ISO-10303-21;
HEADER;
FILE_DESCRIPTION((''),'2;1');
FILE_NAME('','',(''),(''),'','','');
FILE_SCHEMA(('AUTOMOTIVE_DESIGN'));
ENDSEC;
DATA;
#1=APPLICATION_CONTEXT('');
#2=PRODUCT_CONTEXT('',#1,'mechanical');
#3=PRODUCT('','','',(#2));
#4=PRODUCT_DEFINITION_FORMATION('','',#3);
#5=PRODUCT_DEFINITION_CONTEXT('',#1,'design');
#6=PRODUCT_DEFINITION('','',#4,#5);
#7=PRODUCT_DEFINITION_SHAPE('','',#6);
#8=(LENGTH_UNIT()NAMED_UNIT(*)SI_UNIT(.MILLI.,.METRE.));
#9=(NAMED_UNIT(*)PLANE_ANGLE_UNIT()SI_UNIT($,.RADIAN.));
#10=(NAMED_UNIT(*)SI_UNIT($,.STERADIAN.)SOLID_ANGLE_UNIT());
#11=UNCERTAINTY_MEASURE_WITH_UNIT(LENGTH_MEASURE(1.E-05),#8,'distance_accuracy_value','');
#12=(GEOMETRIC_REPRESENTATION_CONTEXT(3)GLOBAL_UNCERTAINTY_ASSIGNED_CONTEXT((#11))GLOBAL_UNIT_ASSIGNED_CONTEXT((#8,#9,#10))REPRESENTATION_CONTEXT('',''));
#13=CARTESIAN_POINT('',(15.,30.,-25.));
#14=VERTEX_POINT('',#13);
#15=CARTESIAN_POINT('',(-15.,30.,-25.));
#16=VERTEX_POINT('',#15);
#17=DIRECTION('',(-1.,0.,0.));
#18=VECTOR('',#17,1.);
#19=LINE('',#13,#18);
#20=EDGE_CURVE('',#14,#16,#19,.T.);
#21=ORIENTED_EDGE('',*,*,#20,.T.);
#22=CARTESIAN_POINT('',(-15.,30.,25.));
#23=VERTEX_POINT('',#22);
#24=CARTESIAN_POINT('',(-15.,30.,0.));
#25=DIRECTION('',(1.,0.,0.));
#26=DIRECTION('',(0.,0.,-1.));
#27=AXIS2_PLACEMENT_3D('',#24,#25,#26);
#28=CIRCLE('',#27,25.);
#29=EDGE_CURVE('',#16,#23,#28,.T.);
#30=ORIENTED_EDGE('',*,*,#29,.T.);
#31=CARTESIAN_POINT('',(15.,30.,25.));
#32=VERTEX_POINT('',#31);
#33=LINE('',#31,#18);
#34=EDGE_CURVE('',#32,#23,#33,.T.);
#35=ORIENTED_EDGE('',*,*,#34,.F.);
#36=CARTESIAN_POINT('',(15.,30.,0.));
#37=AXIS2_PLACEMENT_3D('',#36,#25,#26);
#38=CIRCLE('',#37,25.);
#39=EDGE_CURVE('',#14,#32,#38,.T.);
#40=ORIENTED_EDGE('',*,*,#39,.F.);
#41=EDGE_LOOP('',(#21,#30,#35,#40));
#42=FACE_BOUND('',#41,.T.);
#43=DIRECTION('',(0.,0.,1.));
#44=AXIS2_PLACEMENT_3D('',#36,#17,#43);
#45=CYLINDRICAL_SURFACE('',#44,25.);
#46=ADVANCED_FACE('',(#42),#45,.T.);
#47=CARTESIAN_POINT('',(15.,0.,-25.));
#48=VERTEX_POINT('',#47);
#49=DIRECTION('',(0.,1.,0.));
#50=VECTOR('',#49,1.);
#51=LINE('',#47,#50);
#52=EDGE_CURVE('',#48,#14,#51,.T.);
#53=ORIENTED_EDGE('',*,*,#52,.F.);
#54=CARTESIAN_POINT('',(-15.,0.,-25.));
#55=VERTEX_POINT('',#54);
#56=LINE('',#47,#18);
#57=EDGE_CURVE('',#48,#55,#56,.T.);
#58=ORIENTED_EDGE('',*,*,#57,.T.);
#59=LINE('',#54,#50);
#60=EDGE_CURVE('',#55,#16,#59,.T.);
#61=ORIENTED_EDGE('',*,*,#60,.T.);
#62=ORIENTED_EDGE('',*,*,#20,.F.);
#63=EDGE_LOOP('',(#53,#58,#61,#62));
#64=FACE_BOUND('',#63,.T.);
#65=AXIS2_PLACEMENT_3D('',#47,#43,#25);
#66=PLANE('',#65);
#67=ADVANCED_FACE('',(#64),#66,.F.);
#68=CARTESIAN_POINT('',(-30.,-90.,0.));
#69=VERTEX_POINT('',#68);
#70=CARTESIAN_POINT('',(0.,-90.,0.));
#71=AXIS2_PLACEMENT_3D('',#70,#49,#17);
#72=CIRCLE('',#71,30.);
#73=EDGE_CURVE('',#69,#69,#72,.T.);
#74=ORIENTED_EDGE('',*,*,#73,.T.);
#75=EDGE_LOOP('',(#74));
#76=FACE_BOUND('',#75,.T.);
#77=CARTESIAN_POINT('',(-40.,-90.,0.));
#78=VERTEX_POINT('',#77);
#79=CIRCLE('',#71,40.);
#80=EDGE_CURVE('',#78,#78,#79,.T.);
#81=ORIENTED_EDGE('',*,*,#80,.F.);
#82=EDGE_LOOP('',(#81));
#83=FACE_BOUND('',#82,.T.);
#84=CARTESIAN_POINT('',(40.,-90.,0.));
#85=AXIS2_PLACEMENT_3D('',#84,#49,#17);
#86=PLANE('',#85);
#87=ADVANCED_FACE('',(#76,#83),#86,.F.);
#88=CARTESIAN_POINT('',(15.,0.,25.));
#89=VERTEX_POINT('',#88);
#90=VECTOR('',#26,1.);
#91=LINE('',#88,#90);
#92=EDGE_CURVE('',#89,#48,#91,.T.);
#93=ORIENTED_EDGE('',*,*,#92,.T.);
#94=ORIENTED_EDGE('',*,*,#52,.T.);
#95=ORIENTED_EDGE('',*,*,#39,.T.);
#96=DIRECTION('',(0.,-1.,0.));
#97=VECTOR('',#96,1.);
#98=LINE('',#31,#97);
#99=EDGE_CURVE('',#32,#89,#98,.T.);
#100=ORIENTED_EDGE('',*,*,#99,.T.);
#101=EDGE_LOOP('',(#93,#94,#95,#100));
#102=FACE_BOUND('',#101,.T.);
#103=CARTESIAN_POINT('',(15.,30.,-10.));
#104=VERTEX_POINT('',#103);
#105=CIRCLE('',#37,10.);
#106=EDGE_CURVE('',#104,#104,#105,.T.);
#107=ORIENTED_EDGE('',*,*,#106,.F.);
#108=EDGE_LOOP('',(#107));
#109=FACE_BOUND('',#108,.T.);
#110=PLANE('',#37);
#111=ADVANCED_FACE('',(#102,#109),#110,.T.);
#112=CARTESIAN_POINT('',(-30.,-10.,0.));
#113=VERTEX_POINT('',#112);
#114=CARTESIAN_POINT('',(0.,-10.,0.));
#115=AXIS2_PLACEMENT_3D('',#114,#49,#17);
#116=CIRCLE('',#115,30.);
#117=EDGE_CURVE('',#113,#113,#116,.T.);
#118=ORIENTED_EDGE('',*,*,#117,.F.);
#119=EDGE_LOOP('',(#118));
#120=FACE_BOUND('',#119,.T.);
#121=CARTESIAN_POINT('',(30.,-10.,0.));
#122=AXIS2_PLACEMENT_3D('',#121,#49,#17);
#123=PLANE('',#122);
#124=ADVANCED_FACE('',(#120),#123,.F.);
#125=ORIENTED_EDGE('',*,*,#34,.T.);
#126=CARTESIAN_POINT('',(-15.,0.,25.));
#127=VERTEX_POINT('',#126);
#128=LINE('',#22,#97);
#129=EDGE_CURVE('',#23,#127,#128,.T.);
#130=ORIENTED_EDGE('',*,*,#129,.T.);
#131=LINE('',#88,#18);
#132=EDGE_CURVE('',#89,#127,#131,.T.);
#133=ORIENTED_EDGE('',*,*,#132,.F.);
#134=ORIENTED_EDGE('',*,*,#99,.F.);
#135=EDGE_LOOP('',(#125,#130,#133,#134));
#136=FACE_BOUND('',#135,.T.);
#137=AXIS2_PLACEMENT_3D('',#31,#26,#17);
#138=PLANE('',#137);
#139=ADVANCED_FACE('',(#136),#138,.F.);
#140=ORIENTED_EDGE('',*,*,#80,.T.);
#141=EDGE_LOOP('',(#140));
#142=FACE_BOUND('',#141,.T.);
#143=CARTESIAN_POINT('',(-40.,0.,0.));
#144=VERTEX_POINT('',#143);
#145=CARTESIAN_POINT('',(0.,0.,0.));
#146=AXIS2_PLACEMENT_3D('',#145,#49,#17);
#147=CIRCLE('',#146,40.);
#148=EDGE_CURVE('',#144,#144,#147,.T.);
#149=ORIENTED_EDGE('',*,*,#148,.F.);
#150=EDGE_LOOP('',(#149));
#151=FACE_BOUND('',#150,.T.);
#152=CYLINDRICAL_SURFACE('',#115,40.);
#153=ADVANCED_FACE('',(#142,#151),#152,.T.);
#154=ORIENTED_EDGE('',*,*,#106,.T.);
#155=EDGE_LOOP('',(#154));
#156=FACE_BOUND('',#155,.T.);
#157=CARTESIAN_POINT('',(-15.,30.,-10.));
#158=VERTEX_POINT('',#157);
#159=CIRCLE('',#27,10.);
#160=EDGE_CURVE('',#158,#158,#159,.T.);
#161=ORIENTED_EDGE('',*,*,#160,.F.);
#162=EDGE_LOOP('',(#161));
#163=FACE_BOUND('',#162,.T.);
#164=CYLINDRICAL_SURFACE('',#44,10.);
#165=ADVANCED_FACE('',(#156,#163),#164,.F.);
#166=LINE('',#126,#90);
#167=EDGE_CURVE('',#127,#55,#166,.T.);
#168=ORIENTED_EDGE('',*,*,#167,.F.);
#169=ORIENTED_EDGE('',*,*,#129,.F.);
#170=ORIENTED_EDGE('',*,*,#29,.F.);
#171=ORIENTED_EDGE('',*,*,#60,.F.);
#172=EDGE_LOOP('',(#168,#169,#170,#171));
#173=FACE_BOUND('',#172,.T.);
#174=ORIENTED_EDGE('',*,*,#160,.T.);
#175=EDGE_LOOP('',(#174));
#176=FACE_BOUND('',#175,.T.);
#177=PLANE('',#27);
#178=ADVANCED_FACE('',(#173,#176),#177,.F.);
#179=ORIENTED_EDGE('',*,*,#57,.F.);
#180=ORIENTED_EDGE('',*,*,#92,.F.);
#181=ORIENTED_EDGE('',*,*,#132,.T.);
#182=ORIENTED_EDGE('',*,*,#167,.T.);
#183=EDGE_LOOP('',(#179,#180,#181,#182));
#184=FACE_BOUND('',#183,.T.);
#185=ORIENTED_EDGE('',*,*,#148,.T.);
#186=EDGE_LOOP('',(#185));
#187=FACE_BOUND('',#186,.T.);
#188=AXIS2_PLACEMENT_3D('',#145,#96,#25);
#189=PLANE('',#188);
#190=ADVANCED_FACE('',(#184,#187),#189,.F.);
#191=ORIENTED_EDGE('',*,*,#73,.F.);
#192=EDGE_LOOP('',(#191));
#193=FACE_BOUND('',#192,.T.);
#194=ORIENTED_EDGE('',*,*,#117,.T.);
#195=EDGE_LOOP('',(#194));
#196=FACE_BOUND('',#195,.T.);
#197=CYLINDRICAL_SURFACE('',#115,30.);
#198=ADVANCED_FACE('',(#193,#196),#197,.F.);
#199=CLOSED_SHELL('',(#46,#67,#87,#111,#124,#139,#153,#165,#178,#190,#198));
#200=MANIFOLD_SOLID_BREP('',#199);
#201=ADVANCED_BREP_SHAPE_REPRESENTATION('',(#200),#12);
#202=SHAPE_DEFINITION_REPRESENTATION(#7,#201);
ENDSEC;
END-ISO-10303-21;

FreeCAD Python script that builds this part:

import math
import FreeCAD as App
import Part
import Sketcher

V = App.Vector

doc = App.newDocument("Part")
params = doc.addObject("Spreadsheet::Sheet", "Params")
for row, (alias, value) in enumerate([
    ("sketch1_width", "40 mm"),
    ("sketch1_width2", "30 mm"),
    ("sketch1_height", "80 mm"),
    ("revolution_angle", "360 deg"),
    ("sketch2_diameter", "20 mm"),
    ("sketch2_radius", "25 mm"),
    ("sketch2_width", "30 mm"),
    ("pad1_length", "30 mm"),
], start=1):
    params.set(f"A{row}", alias)
    params.set(f"B{row}", "=" + value)
    params.setAlias(f"B{row}", alias)

body = doc.addObject("PartDesign::Body", "Body")

sketch1 = body.newObject("Sketcher::SketchObject", "Sketch")
sketch1.AttachmentSupport = (doc.getObject("XY_Plane"), [""])
sketch1.MapMode = "FlatFace"
sketch1.addGeometry([
    Part.LineSegment(V(40, 0, 0), V(0, 0, 0)),
    Part.LineSegment(V(0, 0, 0), V(0, -10, 0)),
    Part.LineSegment(V(0, -10, 0), V(30, -10, 0)),
    Part.LineSegment(V(30, -10, 0), V(30, -90, 0)),
    Part.LineSegment(V(30, -90, 0), V(40, -90, 0)),
    Part.LineSegment(V(40, -90, 0), V(40, 0, 0)),
], False)
sketch1.addConstraint([
    Sketcher.Constraint("Coincident", 0, 2, 1, 1),
    Sketcher.Constraint("Coincident", 1, 2, 2, 1),
    Sketcher.Constraint("Coincident", 2, 2, 3, 1),
    Sketcher.Constraint("Coincident", 3, 2, 4, 1),
    Sketcher.Constraint("Coincident", 4, 2, 5, 1),
    Sketcher.Constraint("Coincident", 5, 2, 0, 1),
    Sketcher.Constraint("Horizontal", 0),
    Sketcher.Constraint("Vertical", 1),
    Sketcher.Constraint("Horizontal", 2),
    Sketcher.Constraint("Vertical", 3),
    Sketcher.Constraint("Horizontal", 4),
    Sketcher.Constraint("Vertical", 5),
    Sketcher.Constraint("Coincident", 0, 2, -1, 1),
    Sketcher.Constraint("Equal", 4, 1),
    Sketcher.Constraint("DistanceX", 0, 2, 0, 1, 40.0),
    Sketcher.Constraint("DistanceX", 2, 1, 2, 2, 30.0),
    Sketcher.Constraint("DistanceY", 3, 2, 3, 1, 80.0),
])
sketch1.setExpression("Constraints[14]", "Params.sketch1_width")
sketch1.setExpression("Constraints[15]", "Params.sketch1_width2")
sketch1.setExpression("Constraints[16]", "Params.sketch1_height")
revolution = body.newObject("PartDesign::Revolution", "Revolution")
revolution.Profile = sketch1
revolution.ReferenceAxis = (sketch1, ["V_Axis"])
revolution.setExpression("Angle", "Params.revolution_angle")

sketch2 = body.newObject("Sketcher::SketchObject", "Sketch001")
sketch2.AttachmentSupport = (doc.getObject("YZ_Plane"), [""])
sketch2.MapMode = "FlatFace"
sketch2.addGeometry([
    Part.LineSegment(V(30, 25, 0), V(0, 25, 0)),
    Part.LineSegment(V(0, 25, 0), V(0, -25, 0)),
    Part.LineSegment(V(0, -25, 0), V(30, -25, 0)),
    Part.ArcOfCircle(Part.Circle(V(30, 0, 0), V(0, 0, 1), 25), math.radians(-90), math.radians(90)),
    Part.Circle(V(30, 0, 0), V(0, 0, 1), 10),
], False)
sketch2.addConstraint([
    Sketcher.Constraint("Coincident", 0, 2, 1, 1),
    Sketcher.Constraint("Coincident", 1, 2, 2, 1),
    Sketcher.Constraint("Tangent", 2, 2, 3, 1),
    Sketcher.Constraint("Tangent", 3, 2, 0, 1),
    Sketcher.Constraint("Horizontal", 0),
    Sketcher.Constraint("Vertical", 1),
    Sketcher.Constraint("Horizontal", 2),
    Sketcher.Constraint("Coincident", 4, 3, 3, 3),
    Sketcher.Constraint("Symmetric", 0, 2, 1, 2, -1, 1),
    Sketcher.Constraint("Diameter", 4, 20.0),
    Sketcher.Constraint("Radius", 3, 25.0),
    Sketcher.Constraint("DistanceX", 0, 2, 0, 1, 30.0),
])
sketch2.setExpression("Constraints[9]", "Params.sketch2_diameter")
sketch2.setExpression("Constraints[10]", "Params.sketch2_radius")
sketch2.setExpression("Constraints[11]", "Params.sketch2_width")
pad1 = body.newObject("PartDesign::Pad", "Pad")
pad1.Profile = sketch2
pad1.setExpression("Length", "Params.pad1_length")
pad1.Midplane = True

doc.recompute()
